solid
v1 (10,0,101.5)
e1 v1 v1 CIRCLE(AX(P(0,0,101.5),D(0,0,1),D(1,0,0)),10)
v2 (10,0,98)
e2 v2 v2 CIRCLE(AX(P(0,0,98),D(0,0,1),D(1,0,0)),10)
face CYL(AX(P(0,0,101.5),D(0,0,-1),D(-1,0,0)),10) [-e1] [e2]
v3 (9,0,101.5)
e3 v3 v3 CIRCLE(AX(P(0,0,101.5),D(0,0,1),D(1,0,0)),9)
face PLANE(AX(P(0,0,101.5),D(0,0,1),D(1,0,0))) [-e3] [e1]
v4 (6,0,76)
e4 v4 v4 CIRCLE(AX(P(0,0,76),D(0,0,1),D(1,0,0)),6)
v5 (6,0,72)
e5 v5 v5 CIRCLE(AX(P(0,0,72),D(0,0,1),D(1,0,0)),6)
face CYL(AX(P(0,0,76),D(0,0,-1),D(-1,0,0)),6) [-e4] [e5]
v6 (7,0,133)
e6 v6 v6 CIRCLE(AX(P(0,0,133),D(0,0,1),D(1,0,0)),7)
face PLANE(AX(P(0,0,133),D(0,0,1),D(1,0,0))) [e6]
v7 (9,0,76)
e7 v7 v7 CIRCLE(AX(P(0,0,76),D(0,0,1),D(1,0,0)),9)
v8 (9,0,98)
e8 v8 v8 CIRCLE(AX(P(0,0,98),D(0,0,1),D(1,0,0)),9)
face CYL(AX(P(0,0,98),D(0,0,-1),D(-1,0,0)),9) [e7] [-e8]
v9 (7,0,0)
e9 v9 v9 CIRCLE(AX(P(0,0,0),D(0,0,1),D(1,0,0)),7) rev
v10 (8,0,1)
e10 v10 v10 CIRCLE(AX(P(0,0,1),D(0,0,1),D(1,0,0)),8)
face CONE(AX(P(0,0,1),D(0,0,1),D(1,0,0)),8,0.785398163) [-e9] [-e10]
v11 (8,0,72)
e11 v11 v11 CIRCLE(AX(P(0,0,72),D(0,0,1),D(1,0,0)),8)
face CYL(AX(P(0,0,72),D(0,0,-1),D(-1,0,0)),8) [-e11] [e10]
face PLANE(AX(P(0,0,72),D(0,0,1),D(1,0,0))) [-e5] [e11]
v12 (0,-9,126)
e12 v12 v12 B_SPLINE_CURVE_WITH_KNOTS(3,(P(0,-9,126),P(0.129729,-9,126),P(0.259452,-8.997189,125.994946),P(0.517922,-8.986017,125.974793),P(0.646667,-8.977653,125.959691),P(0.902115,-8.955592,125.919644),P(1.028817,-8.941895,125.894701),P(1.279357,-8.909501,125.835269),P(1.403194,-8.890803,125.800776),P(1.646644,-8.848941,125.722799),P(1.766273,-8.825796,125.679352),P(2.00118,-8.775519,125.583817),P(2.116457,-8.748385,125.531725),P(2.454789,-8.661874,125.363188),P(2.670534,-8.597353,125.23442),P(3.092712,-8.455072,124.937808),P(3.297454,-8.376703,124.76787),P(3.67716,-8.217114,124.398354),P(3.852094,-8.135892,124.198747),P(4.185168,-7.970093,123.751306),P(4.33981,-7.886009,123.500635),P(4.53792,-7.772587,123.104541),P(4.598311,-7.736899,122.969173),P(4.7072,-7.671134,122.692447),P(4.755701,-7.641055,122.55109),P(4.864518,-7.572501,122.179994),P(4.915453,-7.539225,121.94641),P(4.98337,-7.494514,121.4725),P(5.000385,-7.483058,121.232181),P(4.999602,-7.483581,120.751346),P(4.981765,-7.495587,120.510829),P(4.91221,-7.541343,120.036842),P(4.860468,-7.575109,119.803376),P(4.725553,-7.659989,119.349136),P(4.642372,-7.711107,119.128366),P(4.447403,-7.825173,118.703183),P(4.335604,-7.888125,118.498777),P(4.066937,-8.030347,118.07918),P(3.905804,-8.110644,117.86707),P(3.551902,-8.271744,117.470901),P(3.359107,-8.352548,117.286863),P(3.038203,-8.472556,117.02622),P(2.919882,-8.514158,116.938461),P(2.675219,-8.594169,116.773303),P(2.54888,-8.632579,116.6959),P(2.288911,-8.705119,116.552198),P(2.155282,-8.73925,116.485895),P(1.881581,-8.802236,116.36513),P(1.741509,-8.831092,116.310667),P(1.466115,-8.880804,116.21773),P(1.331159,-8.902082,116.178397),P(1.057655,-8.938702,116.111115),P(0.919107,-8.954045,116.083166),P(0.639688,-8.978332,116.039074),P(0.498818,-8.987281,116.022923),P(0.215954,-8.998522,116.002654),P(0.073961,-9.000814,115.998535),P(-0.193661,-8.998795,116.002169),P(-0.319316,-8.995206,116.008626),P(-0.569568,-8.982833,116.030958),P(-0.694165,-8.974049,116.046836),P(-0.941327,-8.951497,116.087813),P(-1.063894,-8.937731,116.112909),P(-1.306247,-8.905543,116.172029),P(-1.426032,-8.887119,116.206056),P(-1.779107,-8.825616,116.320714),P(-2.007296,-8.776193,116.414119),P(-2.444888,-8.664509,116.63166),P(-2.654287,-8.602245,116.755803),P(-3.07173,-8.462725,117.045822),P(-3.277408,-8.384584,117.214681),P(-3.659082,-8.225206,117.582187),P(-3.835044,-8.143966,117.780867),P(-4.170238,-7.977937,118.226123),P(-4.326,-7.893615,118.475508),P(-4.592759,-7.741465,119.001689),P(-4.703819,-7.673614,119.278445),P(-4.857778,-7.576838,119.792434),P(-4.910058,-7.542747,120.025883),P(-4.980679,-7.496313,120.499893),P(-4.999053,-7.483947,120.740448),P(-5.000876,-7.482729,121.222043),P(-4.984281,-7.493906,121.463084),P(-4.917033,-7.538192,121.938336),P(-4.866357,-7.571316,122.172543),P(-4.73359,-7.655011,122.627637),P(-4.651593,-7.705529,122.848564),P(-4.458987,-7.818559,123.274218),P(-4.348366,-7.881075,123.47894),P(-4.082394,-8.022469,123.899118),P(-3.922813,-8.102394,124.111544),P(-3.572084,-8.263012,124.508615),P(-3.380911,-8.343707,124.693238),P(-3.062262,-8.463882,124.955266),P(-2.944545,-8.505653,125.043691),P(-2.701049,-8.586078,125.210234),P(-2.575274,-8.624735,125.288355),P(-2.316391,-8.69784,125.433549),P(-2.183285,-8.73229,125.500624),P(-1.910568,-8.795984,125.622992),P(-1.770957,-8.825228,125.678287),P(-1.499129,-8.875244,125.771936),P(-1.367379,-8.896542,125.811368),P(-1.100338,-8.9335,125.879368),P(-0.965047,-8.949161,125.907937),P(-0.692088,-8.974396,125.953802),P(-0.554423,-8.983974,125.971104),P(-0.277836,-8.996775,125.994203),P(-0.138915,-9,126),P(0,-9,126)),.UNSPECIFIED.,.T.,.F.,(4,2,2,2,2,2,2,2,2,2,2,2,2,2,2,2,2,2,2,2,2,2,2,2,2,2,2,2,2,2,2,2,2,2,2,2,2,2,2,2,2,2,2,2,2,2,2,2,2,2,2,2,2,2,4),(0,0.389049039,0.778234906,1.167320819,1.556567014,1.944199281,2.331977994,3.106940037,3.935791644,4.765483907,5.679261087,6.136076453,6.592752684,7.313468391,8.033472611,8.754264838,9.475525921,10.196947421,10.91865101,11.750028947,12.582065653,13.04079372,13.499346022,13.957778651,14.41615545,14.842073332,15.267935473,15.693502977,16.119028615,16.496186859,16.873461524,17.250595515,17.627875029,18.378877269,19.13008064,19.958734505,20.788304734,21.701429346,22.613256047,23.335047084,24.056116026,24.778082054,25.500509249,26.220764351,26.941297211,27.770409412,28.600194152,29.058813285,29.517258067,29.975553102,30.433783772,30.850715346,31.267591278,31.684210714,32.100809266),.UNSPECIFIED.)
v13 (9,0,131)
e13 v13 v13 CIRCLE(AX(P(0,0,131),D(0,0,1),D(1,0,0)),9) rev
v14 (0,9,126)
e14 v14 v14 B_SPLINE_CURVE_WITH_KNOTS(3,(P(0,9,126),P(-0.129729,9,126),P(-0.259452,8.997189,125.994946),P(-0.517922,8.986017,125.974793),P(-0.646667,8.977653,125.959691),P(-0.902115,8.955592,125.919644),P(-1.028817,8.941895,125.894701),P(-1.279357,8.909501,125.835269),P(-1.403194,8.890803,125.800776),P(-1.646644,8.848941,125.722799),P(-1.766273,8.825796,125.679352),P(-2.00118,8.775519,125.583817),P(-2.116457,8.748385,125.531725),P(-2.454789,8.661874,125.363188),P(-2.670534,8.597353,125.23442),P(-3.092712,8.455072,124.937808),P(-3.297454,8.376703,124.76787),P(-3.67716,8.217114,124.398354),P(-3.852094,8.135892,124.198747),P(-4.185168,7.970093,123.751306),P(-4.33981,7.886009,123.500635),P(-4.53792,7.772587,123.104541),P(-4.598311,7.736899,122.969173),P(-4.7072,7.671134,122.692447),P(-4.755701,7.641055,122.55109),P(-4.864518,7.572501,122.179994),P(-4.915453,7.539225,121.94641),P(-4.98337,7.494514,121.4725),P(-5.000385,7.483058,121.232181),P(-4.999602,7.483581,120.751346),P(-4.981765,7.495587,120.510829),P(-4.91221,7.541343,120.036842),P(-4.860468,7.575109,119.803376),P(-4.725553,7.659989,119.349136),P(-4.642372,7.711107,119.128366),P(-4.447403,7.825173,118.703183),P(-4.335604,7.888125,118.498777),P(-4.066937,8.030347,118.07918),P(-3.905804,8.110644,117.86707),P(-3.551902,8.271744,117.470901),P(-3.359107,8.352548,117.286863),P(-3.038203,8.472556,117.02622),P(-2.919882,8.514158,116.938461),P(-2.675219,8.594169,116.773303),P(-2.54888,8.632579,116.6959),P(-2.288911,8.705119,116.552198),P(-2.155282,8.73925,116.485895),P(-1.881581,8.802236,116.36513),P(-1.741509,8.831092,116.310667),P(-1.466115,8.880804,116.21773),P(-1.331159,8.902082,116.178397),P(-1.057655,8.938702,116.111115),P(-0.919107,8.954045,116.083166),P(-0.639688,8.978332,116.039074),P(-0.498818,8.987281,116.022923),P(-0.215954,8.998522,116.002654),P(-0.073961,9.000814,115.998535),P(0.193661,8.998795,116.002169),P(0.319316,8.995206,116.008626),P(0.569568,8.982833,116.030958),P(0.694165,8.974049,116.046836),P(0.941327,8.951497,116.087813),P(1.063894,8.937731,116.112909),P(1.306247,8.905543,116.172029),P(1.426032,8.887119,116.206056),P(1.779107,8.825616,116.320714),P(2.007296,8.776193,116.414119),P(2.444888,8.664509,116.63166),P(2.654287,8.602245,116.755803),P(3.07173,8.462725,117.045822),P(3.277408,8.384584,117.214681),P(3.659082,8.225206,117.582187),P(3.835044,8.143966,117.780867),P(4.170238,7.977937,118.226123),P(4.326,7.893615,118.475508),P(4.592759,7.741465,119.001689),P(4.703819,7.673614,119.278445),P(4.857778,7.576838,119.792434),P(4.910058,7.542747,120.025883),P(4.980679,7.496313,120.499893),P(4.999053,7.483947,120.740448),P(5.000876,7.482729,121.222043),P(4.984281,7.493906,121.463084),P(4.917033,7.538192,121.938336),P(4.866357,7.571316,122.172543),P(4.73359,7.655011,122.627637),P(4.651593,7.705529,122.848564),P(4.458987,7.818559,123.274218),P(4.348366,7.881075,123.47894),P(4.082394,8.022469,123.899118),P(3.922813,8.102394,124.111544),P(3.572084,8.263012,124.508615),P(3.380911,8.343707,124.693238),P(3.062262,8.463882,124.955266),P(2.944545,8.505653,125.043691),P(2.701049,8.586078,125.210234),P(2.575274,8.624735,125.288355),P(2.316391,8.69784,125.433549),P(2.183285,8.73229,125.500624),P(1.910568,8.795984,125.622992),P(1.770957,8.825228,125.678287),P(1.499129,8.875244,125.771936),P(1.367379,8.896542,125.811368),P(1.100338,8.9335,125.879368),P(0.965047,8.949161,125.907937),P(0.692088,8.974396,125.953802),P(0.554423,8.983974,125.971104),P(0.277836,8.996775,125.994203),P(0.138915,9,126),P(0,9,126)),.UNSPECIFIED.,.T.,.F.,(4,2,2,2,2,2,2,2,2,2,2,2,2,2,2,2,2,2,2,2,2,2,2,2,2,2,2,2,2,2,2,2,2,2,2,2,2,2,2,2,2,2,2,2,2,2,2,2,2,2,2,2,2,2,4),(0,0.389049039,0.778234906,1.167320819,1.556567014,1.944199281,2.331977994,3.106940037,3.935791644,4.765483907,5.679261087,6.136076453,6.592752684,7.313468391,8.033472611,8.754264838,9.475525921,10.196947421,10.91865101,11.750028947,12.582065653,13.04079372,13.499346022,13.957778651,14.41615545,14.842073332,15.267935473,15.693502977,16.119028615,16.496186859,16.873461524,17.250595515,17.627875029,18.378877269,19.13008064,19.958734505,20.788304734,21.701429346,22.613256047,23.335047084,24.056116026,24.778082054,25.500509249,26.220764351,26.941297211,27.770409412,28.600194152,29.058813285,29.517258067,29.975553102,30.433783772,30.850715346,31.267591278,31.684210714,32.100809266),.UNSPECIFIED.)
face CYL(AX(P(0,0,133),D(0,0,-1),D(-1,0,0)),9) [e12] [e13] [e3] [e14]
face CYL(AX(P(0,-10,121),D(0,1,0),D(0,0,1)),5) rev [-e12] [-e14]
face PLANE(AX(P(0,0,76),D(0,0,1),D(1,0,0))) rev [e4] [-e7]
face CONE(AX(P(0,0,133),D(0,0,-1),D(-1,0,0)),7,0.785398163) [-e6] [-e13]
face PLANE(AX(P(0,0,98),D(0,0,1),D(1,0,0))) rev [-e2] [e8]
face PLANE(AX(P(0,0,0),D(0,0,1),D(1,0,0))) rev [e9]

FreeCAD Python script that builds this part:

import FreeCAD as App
import Part
import Sketcher

V = App.Vector
Q = App.Units.Quantity


def edges_at(feature, points):
    """Names of the edges that pass closest to the given points."""
    edges = feature.Shape.Edges
    near = lambda p: min(range(len(edges)), key=lambda i: edges[i].distToShape(Part.Vertex(*p))[0])
    return sorted({f"Edge{near(p) + 1}" for p in points})

doc = App.newDocument("Part")
body = doc.addObject("PartDesign::Body", "Body")

# Sketch on XY plane
sketch1 = body.newObject("Sketcher::SketchObject", "Sketch")
sketch1.AttachmentSupport = (doc.getObject("XY_Plane"), [""])
sketch1.MapMode = "FlatFace"
sketch1.addGeometry(Part.Circle(V(0, 0, 0), V(0, 0, 1), 8), False)
sketch1.addConstraint([
    Sketcher.Constraint("Coincident", 0, 3, -1, 1),
    Sketcher.Constraint("Diameter", 0, Q("16 mm")),
])
pad1 = body.newObject("PartDesign::Pad", "Pad")
pad1.Profile = sketch1
pad1.Length = 72

# Sketch on XY plane
sketch2 = body.newObject("Sketcher::SketchObject", "Sketch001")
sketch2.AttachmentSupport = (doc.getObject("XY_Plane"), [""])
sketch2.MapMode = "FlatFace"
sketch2.AttachmentOffset = App.Placement(V(0, 0, 72), App.Rotation())
sketch2.addGeometry(Part.Circle(V(0, 0, 0), V(0, 0, 1), 6), False)
sketch2.addConstraint([
    Sketcher.Constraint("Coincident", 0, 3, -1, 1),
    Sketcher.Constraint("Diameter", 0, Q("12 mm")),
])
pad2 = body.newObject("PartDesign::Pad", "Pad001")
pad2.Profile = sketch2
pad2.Length = 4

# Sketch on XY plane
sketch3 = body.newObject("Sketcher::SketchObject", "Sketch002")
sketch3.AttachmentSupport = (doc.getObject("XY_Plane"), [""])
sketch3.MapMode = "FlatFace"
sketch3.AttachmentOffset = App.Placement(V(0, 0, 76), App.Rotation())
sketch3.addGeometry(Part.Circle(V(0, 0, 0), V(0, 0, 1), 9), False)
sketch3.addConstraint([
    Sketcher.Constraint("Coincident", 0, 3, -1, 1),
    Sketcher.Constraint("Diameter", 0, Q("18 mm")),
])
pad3 = body.newObject("PartDesign::Pad", "Pad002")
pad3.Profile = sketch3
pad3.Length = 22

# Sketch on XY plane
sketch4 = body.newObject("Sketcher::SketchObject", "Sketch003")
sketch4.AttachmentSupport = (doc.getObject("XY_Plane"), [""])
sketch4.MapMode = "FlatFace"
sketch4.AttachmentOffset = App.Placement(V(0, 0, 98), App.Rotation())
sketch4.addGeometry(Part.Circle(V(0, 0, 0), V(0, 0, 1), 10), False)
sketch4.addConstraint([
    Sketcher.Constraint("Coincident", 0, 3, -1, 1),
    Sketcher.Constraint("Diameter", 0, Q("20 mm")),
])
pad4 = body.newObject("PartDesign::Pad", "Pad003")
pad4.Profile = sketch4
pad4.Length = 3.5

# Sketch on XY plane
sketch5 = body.newObject("Sketcher::SketchObject", "Sketch004")
sketch5.AttachmentSupport = (doc.getObject("XY_Plane"), [""])
sketch5.MapMode = "FlatFace"
sketch5.AttachmentOffset = App.Placement(V(0, 0, 101.5), App.Rotation())
sketch5.addGeometry(Part.Circle(V(0, 0, 0), V(0, 0, 1), 9), False)
sketch5.addConstraint([
    Sketcher.Constraint("Coincident", 0, 3, -1, 1),
    Sketcher.Constraint("Diameter", 0, Q("18 mm")),
])
pad5 = body.newObject("PartDesign::Pad", "Pad004")
pad5.Profile = sketch5
pad5.Length = 31.5
doc.recompute()

chamfer = body.newObject("PartDesign::Chamfer", "Chamfer")
chamfer.Base = (pad5, edges_at(pad5, [(-9, 0, 133)]))
chamfer.Size = 2
doc.recompute()

chamfer2 = body.newObject("PartDesign::Chamfer", "Chamfer001")
chamfer2.Base = (chamfer, edges_at(chamfer, [(-8, 0, 0)]))
chamfer2.Size = 1

# Sketch on XZ plane
sketch6 = body.newObject("Sketcher::SketchObject", "Sketch005")
sketch6.AttachmentSupport = (doc.getObject("XZ_Plane"), [""])
sketch6.MapMode = "FlatFace"
sketch6.addGeometry(Part.Circle(V(0, 121, 0), V(0, 0, 1), 5), False)
sketch6.addConstraint([
    Sketcher.Constraint("PointOnObject", 0, 3, -2),
    Sketcher.Constraint("Diameter", 0, Q("10 mm")),
    Sketcher.Constraint("DistanceY", -1, 1, 0, 3, Q("121 mm")),
])
pocket1 = body.newObject("PartDesign::Pocket", "Pocket")
pocket1.Profile = sketch6
pocket1.Type = "ThroughAll"
pocket1.Midplane = True

doc.recompute()
